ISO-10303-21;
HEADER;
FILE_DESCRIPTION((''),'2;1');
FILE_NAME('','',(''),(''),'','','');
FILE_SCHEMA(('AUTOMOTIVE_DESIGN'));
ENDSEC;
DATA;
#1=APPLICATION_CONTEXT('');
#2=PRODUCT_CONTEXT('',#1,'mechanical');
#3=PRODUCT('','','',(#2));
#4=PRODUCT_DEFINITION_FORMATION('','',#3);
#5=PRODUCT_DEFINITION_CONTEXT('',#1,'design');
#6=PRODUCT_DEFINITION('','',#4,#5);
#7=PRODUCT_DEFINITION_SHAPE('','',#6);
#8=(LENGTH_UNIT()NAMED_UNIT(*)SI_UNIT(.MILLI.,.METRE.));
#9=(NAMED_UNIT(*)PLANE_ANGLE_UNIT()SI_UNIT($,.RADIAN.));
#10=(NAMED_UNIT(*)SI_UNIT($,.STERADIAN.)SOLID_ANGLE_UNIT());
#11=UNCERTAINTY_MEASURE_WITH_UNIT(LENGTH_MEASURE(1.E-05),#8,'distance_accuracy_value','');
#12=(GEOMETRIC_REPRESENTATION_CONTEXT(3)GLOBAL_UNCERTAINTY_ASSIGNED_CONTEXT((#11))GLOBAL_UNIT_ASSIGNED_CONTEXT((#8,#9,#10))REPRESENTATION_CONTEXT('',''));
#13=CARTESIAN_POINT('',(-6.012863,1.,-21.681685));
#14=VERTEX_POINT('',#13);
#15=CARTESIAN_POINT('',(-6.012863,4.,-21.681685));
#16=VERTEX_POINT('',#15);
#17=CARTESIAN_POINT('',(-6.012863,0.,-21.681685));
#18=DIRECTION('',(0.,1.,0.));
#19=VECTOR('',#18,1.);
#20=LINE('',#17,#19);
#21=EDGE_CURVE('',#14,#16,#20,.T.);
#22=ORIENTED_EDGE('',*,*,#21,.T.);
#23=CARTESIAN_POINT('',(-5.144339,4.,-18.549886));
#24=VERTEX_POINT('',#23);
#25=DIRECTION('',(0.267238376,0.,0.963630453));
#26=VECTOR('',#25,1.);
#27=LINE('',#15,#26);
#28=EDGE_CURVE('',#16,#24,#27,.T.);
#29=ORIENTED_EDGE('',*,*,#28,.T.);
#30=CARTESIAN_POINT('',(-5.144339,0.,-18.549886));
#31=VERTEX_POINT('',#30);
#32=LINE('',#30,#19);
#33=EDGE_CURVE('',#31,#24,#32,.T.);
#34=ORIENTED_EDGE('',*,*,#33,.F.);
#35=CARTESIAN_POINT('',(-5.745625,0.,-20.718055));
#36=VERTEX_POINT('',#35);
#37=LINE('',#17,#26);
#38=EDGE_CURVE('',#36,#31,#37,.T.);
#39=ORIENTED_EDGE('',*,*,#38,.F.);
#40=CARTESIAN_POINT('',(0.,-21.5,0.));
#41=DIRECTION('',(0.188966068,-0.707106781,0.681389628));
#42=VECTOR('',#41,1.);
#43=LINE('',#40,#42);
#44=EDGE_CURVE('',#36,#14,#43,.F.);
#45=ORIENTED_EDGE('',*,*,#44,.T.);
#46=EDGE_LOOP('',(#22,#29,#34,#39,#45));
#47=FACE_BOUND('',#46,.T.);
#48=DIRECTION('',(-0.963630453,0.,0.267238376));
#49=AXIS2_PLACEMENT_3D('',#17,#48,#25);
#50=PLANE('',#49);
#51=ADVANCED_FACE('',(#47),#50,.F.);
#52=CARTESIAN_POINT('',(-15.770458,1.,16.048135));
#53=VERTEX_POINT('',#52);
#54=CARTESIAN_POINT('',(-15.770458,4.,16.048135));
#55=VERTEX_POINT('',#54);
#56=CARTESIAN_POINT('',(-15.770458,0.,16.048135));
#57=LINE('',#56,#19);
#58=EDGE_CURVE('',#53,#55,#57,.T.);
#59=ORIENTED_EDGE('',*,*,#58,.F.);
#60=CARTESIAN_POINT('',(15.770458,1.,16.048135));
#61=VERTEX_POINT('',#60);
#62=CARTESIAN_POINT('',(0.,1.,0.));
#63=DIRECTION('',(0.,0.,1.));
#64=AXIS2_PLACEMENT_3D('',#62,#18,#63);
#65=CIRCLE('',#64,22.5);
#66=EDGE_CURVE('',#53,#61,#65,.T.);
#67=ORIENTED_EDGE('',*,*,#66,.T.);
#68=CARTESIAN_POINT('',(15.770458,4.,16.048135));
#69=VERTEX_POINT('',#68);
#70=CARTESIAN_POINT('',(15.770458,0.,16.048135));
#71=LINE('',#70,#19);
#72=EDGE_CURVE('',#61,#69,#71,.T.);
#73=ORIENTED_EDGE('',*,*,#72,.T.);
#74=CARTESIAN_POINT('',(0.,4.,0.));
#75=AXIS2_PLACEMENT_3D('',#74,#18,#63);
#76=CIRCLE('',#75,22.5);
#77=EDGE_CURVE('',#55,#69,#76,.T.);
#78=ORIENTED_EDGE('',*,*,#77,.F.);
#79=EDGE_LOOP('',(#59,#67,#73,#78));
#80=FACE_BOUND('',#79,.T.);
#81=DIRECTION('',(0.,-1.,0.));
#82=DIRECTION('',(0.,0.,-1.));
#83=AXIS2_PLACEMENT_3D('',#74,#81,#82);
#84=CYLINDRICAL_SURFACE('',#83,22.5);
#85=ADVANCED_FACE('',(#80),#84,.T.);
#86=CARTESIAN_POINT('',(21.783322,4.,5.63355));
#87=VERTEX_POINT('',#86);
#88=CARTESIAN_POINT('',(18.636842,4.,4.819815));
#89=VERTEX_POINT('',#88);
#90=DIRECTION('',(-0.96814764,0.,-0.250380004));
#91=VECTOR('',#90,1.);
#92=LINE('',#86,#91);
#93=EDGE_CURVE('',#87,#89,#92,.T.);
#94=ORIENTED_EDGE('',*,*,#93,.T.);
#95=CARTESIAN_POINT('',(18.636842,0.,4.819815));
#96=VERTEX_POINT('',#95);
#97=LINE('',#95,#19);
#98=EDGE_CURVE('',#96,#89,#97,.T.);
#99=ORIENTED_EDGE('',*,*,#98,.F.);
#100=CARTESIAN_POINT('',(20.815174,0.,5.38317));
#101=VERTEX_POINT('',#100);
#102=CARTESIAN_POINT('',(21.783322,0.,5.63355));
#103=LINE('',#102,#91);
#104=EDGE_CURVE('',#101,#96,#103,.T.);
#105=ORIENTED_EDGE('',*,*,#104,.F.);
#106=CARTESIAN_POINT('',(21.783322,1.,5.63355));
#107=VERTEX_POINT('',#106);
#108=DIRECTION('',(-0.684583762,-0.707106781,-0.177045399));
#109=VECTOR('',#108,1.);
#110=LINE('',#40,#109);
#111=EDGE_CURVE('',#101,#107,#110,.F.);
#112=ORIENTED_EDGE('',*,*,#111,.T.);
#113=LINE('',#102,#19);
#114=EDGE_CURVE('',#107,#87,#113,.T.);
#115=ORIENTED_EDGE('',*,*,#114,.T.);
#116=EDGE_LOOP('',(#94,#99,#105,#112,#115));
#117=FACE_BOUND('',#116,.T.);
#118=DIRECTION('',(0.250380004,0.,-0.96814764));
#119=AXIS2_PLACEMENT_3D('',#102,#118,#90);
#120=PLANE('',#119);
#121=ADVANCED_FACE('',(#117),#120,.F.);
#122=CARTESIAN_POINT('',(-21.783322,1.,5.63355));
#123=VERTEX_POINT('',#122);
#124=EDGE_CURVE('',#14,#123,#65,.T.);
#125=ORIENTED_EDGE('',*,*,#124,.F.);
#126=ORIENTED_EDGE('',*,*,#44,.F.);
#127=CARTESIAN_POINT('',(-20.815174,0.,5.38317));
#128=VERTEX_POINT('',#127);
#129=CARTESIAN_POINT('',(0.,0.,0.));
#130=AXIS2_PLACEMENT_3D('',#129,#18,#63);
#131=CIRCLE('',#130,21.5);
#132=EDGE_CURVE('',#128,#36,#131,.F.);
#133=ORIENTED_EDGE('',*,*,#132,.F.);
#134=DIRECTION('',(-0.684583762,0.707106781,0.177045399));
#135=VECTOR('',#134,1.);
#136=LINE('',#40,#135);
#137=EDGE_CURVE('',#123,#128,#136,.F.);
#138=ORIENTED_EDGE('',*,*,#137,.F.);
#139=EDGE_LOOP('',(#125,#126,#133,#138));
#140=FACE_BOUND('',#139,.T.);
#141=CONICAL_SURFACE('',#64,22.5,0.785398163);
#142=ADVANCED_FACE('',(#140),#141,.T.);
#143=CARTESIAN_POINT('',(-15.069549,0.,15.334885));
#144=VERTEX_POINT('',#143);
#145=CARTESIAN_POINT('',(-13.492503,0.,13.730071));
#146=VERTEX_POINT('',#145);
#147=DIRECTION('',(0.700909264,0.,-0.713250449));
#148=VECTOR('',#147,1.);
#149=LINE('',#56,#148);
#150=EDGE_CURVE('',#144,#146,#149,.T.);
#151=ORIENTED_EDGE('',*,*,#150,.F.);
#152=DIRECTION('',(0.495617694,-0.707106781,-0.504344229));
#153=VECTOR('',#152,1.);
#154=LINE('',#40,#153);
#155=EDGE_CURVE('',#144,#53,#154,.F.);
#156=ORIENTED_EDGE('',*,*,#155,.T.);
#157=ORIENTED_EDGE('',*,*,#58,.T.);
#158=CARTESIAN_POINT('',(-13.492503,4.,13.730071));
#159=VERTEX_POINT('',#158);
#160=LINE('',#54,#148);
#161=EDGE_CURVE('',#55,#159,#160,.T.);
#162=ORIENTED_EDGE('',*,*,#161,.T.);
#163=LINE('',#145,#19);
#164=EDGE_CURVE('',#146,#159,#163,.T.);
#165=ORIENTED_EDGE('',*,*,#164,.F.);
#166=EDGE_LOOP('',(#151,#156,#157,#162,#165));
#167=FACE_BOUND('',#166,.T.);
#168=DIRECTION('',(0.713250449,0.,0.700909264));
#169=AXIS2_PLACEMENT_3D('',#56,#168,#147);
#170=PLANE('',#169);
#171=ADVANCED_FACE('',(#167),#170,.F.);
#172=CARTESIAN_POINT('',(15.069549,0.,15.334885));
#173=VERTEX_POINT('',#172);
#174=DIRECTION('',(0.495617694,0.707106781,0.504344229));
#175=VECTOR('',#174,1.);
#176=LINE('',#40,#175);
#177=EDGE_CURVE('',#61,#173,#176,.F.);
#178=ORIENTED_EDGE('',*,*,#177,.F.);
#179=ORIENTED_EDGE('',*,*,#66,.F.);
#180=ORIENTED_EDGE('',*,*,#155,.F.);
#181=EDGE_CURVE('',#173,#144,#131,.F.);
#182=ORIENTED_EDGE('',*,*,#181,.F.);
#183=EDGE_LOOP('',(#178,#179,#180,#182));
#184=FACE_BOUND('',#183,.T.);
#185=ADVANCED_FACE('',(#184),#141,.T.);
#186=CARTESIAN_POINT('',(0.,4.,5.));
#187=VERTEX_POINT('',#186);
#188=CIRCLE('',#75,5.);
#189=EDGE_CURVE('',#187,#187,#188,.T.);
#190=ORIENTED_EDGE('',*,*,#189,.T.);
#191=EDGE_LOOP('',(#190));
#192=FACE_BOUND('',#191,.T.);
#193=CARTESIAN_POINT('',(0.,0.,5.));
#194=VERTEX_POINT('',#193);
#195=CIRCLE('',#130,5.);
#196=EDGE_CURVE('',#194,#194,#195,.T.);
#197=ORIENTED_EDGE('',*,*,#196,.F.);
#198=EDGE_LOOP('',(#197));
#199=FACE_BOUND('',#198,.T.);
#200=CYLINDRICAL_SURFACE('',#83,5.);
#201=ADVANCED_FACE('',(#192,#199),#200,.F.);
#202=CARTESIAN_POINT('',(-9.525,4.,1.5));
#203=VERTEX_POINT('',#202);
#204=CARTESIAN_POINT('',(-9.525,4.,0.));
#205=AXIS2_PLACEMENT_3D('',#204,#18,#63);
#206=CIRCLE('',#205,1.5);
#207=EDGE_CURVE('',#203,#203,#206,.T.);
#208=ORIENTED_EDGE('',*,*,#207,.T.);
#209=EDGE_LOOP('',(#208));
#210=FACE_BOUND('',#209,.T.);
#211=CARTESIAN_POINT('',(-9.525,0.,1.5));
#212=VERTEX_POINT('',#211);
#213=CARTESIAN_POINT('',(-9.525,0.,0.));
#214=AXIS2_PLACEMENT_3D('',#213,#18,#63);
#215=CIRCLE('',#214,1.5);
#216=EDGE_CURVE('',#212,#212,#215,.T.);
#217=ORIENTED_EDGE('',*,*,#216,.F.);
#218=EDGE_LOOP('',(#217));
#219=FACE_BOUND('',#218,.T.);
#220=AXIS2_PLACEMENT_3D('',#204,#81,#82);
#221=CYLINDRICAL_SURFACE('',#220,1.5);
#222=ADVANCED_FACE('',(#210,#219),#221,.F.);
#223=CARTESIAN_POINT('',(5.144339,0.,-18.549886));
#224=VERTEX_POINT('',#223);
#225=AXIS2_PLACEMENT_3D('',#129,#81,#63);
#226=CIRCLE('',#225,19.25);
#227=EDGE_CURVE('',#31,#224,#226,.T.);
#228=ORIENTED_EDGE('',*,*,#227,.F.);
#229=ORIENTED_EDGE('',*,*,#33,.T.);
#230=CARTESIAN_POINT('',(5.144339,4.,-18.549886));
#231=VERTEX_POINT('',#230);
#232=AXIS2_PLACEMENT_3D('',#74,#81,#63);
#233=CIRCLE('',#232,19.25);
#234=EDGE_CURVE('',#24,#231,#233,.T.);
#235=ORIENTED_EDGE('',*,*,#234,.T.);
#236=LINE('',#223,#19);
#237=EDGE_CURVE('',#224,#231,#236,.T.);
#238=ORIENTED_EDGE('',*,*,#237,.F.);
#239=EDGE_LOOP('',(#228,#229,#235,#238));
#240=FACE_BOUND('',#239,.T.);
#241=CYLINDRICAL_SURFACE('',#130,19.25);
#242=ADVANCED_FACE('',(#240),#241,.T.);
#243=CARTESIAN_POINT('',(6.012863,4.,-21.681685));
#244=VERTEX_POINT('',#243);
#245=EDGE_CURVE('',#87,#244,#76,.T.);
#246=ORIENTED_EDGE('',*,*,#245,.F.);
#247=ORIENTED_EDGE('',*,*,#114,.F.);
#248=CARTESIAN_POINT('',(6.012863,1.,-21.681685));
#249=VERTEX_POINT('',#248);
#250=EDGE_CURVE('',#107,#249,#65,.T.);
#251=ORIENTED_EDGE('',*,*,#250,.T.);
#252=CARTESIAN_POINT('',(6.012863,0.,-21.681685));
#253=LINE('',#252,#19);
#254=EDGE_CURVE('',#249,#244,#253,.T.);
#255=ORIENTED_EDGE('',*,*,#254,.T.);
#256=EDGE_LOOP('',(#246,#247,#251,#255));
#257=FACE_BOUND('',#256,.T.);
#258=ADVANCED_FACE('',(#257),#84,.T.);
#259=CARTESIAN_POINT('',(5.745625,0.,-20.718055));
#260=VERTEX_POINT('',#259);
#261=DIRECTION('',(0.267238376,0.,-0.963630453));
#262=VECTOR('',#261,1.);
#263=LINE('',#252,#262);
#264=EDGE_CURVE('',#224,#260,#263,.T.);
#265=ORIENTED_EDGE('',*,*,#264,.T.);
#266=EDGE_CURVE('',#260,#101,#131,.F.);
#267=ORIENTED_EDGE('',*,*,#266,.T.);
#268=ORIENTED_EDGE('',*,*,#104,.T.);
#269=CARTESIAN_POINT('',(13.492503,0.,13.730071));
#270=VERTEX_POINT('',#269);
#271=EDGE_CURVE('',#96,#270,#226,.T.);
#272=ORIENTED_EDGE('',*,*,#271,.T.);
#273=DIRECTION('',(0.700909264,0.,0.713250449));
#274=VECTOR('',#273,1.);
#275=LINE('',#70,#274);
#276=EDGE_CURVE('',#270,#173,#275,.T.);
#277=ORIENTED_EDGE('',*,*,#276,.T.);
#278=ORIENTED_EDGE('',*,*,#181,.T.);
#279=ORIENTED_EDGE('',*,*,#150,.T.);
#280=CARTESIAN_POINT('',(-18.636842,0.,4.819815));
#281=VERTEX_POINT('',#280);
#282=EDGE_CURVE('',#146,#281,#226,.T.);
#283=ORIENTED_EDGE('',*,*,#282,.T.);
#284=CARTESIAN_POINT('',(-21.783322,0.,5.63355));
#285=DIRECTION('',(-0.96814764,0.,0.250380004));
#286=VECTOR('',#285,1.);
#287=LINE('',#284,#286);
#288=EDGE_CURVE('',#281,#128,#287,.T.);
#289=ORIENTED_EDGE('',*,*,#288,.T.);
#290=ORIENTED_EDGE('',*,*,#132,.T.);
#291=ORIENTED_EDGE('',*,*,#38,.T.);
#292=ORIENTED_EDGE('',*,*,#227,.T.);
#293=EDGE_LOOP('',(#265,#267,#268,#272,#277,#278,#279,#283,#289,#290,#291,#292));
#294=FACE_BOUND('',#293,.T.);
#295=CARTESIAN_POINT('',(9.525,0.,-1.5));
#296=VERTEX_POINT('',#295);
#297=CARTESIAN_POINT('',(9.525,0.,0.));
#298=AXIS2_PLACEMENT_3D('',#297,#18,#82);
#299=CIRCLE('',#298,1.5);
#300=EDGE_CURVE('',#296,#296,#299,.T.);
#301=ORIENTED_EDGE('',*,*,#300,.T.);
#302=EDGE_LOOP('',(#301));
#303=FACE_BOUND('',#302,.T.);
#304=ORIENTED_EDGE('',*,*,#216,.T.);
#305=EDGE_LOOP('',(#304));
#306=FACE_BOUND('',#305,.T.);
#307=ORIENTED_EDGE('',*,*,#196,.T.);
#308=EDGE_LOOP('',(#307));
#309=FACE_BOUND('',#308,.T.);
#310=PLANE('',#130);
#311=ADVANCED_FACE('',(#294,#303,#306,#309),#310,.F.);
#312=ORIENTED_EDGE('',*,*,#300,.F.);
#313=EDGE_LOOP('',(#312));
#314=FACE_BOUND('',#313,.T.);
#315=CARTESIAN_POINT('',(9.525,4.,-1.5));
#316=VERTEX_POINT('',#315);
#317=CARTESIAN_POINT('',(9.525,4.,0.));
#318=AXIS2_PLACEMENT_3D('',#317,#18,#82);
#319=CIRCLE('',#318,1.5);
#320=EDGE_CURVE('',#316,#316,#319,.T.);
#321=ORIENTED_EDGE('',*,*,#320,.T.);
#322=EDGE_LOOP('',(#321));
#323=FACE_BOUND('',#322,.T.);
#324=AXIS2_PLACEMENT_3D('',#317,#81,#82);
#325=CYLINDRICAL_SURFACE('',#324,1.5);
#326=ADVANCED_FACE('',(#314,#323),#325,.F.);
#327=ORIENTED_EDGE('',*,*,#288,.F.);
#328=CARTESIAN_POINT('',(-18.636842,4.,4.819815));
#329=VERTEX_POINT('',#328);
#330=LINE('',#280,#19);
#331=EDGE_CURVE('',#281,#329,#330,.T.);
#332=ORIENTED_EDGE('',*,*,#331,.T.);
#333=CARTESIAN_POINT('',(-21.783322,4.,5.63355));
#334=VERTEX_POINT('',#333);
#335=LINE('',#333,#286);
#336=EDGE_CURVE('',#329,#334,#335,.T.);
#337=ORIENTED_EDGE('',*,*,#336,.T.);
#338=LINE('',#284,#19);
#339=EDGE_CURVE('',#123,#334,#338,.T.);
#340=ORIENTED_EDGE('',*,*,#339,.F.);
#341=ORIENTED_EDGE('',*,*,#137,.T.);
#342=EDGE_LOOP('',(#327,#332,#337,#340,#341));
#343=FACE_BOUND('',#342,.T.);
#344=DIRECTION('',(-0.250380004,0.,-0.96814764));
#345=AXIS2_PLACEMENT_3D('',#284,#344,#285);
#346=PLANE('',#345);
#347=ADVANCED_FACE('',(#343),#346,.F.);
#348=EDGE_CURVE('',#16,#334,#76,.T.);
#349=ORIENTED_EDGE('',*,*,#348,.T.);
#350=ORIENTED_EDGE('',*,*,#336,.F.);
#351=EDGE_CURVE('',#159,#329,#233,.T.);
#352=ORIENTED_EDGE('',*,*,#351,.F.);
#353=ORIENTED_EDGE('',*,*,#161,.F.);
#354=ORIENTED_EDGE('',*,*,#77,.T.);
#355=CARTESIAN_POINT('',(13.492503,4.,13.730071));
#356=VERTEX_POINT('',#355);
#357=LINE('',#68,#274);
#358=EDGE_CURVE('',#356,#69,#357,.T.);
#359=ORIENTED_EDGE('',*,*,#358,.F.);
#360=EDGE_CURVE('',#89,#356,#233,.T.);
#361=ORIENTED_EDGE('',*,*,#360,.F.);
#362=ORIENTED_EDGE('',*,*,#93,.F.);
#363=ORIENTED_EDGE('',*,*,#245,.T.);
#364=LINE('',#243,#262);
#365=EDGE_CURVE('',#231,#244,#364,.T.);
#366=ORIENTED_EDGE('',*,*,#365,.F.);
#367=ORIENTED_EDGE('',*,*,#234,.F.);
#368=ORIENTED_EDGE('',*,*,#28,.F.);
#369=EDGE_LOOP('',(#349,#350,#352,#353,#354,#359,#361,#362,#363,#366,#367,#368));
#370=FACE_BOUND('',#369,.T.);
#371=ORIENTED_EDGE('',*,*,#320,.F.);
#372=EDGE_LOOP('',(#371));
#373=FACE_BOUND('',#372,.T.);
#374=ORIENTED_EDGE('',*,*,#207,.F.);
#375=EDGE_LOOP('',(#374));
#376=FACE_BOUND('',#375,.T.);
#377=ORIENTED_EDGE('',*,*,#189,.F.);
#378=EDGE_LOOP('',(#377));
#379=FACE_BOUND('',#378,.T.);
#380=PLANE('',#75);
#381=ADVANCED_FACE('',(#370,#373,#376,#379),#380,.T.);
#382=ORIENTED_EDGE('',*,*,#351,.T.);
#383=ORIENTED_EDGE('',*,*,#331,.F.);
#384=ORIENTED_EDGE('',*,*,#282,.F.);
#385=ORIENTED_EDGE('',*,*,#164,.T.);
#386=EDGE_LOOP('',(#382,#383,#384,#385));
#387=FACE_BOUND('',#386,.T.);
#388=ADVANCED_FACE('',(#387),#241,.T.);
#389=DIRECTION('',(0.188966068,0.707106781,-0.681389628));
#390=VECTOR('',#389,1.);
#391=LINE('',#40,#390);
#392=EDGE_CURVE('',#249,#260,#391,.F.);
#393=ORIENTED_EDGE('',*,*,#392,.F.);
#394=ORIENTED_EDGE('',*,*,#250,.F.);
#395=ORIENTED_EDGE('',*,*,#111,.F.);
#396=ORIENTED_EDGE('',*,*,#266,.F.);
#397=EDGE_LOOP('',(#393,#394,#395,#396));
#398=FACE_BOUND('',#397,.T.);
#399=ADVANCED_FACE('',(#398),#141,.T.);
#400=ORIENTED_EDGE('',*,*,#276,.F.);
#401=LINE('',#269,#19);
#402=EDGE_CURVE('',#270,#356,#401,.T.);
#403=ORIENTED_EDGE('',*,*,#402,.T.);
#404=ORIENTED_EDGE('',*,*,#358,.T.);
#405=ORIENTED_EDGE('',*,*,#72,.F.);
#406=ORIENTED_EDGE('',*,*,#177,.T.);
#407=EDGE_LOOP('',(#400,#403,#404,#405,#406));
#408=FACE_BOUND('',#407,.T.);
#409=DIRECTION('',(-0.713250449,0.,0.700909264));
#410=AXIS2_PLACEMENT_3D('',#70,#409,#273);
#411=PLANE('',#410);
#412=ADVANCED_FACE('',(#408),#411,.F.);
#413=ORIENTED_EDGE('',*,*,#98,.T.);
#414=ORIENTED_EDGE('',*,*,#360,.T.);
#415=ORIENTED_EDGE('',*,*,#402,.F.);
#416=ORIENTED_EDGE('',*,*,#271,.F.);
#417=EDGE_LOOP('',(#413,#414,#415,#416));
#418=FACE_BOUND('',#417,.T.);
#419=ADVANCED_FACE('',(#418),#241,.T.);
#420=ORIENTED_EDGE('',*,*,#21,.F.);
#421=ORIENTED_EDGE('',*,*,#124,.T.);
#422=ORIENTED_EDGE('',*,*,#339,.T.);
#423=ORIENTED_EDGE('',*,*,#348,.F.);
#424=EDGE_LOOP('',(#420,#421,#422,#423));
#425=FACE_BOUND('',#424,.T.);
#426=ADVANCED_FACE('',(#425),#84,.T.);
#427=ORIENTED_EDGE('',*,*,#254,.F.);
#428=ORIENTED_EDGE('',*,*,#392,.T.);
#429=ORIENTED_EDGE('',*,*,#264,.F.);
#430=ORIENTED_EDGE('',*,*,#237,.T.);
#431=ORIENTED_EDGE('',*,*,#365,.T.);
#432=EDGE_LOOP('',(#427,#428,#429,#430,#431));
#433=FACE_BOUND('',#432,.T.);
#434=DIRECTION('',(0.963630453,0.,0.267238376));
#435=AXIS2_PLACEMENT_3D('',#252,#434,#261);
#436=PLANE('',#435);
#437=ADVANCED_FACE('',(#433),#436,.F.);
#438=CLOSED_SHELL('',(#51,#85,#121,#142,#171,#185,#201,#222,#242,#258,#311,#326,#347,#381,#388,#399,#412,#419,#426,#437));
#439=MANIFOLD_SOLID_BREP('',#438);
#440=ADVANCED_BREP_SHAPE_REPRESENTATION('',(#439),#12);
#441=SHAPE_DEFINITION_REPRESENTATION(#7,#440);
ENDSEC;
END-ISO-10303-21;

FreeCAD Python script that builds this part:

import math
import FreeCAD as App
import Part
import Sketcher

V = App.Vector
Q = App.Units.Quantity


def edges_at(feature, points):
    """Names of the edges that pass closest to the given points."""
    edges = feature.Shape.Edges
    near = lambda p: min(range(len(edges)), key=lambda i: edges[i].distToShape(Part.Vertex(*p))[0])
    return sorted({f"Edge{near(p) + 1}" for p in points})

doc = App.newDocument("Part")
body = doc.addObject("PartDesign::Body", "Body")

# Sketch on XZ plane
sketch1 = doc.addObject("Sketcher::SketchObject", "Sketch")
body.addObject(sketch1)
sketch1.AttachmentSupport = (doc.XZ_Plane, [""])
sketch1.MapMode = "FlatFace"
sketch1.addGeometry(Part.Circle(V(0, 0, 0), V(0, 0, 1), 22.5), False)
sketch1.addGeometry(Part.Circle(V(-9.525, 0, 0), V(0, 0, 1), 1.5), False)
sketch1.addGeometry(Part.Circle(V(0, 0, 0), V(0, 0, 1), 5), False)
sketch1.addGeometry(Part.Circle(V(9.525, 0, 0), V(0, 0, 1), 1.5), False)
sketch1.addConstraint(Sketcher.Constraint("Coincident", 0, 3, -1, 1))
sketch1.addConstraint(Sketcher.Constraint("Coincident", 2, 3, -1, 1))
sketch1.addConstraint(Sketcher.Constraint("Equal", 1, 3))
sketch1.addConstraint(Sketcher.Constraint("Symmetric", 1, 3, 3, 3, -1, 1))
sketch1.addConstraint(Sketcher.Constraint("PointOnObject", 1, 3, -1))
sketch1.addConstraint(Sketcher.Constraint("Diameter", 0, 45.0))
sketch1.addConstraint(Sketcher.Constraint("Diameter", 1, 3.0))
sketch1.addConstraint(Sketcher.Constraint("Diameter", 2, 10.0))
sketch1.addConstraint(Sketcher.Constraint("DistanceX", 1, 3, 3, 3, 19.05))
pad1 = doc.addObject("PartDesign::Pad", "Pad")
body.addObject(pad1)
pad1.Profile = sketch1
pad1.Length = 4
pad1.Reversed = True
doc.recompute()

chamfer = doc.addObject("PartDesign::Chamfer", "Chamfer")
body.addObject(chamfer)
chamfer.Base = (pad1, edges_at(pad1, [(-22.5, 0, 0)]))
chamfer.Size = 1

# Sketch on XZ plane
sketch2 = doc.addObject("Sketcher::SketchObject", "Sketch001")
body.addObject(sketch2)
sketch2.AttachmentSupport = (doc.XZ_Plane, [""])
sketch2.MapMode = "FlatFace"
sketch2.AttachmentOffset = App.Placement(V(0, 0, -4), App.Rotation())
sketch2.addGeometry(Part.LineSegment(V(5.144339, -18.549886, 0), V(6.012863, -21.681685, 0)), False)
sketch2.addGeometry(Part.ArcOfCircle(Part.Circle(V(0, 0, 0), V(0, 0, 1), 22.5), math.radians(-105.5), math.radians(-74.5)), False)
sketch2.addGeometry(Part.LineSegment(V(-6.012863, -21.681685, 0), V(-5.144339, -18.549886, 0)), False)
sketch2.addGeometry(Part.ArcOfCircle(Part.Circle(V(0, 0, 0), V(0, 0, 1), 19.25), math.radians(-105.5), math.radians(-74.5)), False)
sketch2.addGeometry(Part.LineSegment(V(21.783322, 5.63355, 0), V(18.636842, 4.819815, 0)), False)
sketch2.addGeometry(Part.ArcOfCircle(Part.Circle(V(0, 0, 0), V(0, 0, 1), 19.25), math.radians(14.5), math.radians(45.5)), False)
sketch2.addGeometry(Part.LineSegment(V(13.492503, 13.730071, 0), V(15.770458, 16.048135, 0)), False)
sketch2.addGeometry(Part.ArcOfCircle(Part.Circle(V(0, 0, 0), V(0, 0, 1), 22.5), math.radians(14.5), math.radians(45.5)), False)
sketch2.addGeometry(Part.LineSegment(V(-15.770458, 16.048135, 0), V(-13.492503, 13.730071, 0)), False)
sketch2.addGeometry(Part.ArcOfCircle(Part.Circle(V(0, 0, 0), V(0, 0, 1), 19.25), math.radians(134.5), math.radians(165.5)), False)
sketch2.addGeometry(Part.LineSegment(V(-18.636842, 4.819815, 0), V(-21.783322, 5.63355, 0)), False)
sketch2.addGeometry(Part.ArcOfCircle(Part.Circle(V(0, 0, 0), V(0, 0, 1), 22.5), math.radians(134.5), math.radians(165.5)), False)
sketch2.addConstraint(Sketcher.Constraint("Coincident", 0, 2, 1, 2))
sketch2.addConstraint(Sketcher.Constraint("Coincident", 1, 1, 2, 1))
sketch2.addConstraint(Sketcher.Constraint("Coincident", 2, 2, 3, 1))
sketch2.addConstraint(Sketcher.Constraint("Coincident", 3, 2, 0, 1))
sketch2.addConstraint(Sketcher.Constraint("Coincident", 4, 2, 5, 1))
sketch2.addConstraint(Sketcher.Constraint("Coincident", 5, 2, 6, 1))
sketch2.addConstraint(Sketcher.Constraint("Coincident", 6, 2, 7, 2))
sketch2.addConstraint(Sketcher.Constraint("Coincident", 7, 1, 4, 1))
sketch2.addConstraint(Sketcher.Constraint("Coincident", 8, 2, 9, 1))
sketch2.addConstraint(Sketcher.Constraint("Coincident", 9, 2, 10, 1))
sketch2.addConstraint(Sketcher.Constraint("Coincident", 10, 2, 11, 2))
sketch2.addConstraint(Sketcher.Constraint("Coincident", 11, 1, 8, 1))
sketch2.addConstraint(Sketcher.Constraint("Coincident", 1, 3, -1, 1))
sketch2.addConstraint(Sketcher.Constraint("Coincident", 3, 3, -1, 1))
sketch2.addConstraint(Sketcher.Constraint("Coincident", 5, 3, -1, 1))
sketch2.addConstraint(Sketcher.Constraint("Coincident", 7, 3, -1, 1))
sketch2.addConstraint(Sketcher.Constraint("Coincident", 9, 3, -1, 1))
sketch2.addConstraint(Sketcher.Constraint("Coincident", 11, 3, -1, 1))
sketch2.addConstraint(Sketcher.Constraint("Equal", 3, 5))
sketch2.addConstraint(Sketcher.Constraint("Equal", 1, 7))
sketch2.addConstraint(Sketcher.Constraint("Equal", 5, 9))
sketch2.addConstraint(Sketcher.Constraint("Equal", 7, 11))
sketch2.addConstraint(Sketcher.Constraint("Horizontal", 0, 2, 1, 1))
sketch2.addConstraint(Sketcher.Constraint("Horizontal", 2, 2, 3, 2))
sketch2.addConstraint(Sketcher.Constraint("Horizontal", 5, 2, 8, 2))
sketch2.addConstraint(Sketcher.Constraint("Horizontal", 4, 2, 9, 2))
sketch2.addConstraint(Sketcher.Constraint("Horizontal", 7, 1, 10, 2))
sketch2.addConstraint(Sketcher.Constraint("Horizontal", 6, 2, 11, 1))
sketch2.addConstraint(Sketcher.Constraint("Radius", 1, 22.5))
sketch2.addConstraint(Sketcher.Constraint("Radius", 3, 19.25))
sketch2.addConstraint(Sketcher.Constraint("Angle", 0, Q("-74.5 deg")))
sketch2.addConstraint(Sketcher.Constraint("Angle", 4, Q("-165.5 deg")))
sketch2.addConstraint(Sketcher.Constraint("Angle", 6, Q("45.5 deg")))
sketch2.addConstraint(Sketcher.Constraint("DistanceX", 2, 2, -1, 1, 5.144339))
sketch2.addConstraint(Sketcher.Constraint("DistanceY", -1, 1, 5, 2, 13.730071))
sketch2.addConstraint(Sketcher.Constraint("DistanceX", -1, 1, 7, 1, 21.783322))
pocket1 = doc.addObject("PartDesign::Pocket", "Pocket")
body.addObject(pocket1)
pocket1.Profile = sketch2
pocket1.Type = "ThroughAll"
pocket1.Reversed = True

doc.recompute()
